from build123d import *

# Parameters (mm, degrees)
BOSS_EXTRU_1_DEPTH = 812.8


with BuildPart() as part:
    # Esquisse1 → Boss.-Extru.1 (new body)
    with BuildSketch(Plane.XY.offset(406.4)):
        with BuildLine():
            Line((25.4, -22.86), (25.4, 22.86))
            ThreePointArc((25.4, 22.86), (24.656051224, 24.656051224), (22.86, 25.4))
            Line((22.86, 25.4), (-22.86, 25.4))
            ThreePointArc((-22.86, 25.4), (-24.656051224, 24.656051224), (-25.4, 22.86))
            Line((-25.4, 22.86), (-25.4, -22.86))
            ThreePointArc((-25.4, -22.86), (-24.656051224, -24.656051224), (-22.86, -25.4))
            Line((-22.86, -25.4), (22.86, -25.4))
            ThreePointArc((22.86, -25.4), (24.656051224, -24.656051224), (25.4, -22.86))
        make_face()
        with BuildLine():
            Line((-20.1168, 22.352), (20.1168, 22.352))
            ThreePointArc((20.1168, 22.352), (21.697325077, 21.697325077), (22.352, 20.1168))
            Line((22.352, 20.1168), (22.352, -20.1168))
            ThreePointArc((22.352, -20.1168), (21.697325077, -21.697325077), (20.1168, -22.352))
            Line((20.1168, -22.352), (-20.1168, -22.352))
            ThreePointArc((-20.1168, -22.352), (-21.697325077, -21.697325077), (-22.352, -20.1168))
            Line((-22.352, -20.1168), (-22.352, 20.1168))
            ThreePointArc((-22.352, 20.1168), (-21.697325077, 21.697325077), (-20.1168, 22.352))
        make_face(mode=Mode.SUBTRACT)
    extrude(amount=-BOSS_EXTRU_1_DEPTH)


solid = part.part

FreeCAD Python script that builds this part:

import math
import FreeCAD as App
import Part
import Sketcher

V = App.Vector
Q = App.Units.Quantity

doc = App.newDocument("Part")
params = doc.addObject("Spreadsheet::Sheet", "Params")
for row, (alias, value) in enumerate([
    ("sketch1_radius", "0.1 in"),
    ("sketch1_width", "1.8 in"),
    ("sketch1_radius2", "0.088 in"),
    ("sketch1_width2", "1.584 in"),
    ("pad1_length", "32 in"),
], start=1):
    params.set(f"A{row}", alias)
    params.set(f"B{row}", "=" + value)
    params.setAlias(f"B{row}", alias)

body = doc.addObject("PartDesign::Body", "Body")

sketch1 = body.newObject("Sketcher::SketchObject", "Sketch")
sketch1.AttachmentSupport = (doc.getObject("XY_Plane"), [""])
sketch1.MapMode = "FlatFace"
sketch1.AttachmentOffset = App.Placement(V(0, 0, 16 * 25.4), App.Rotation())
sketch1.addGeometry([
    Part.LineSegment(V(25.4, -22.86, 0), V(25.4, 22.86, 0)),
    Part.ArcOfCircle(Part.Circle(V(22.86, 22.86, 0), V(0, 0, 1), 2.54), math.radians(0), math.radians(90)),
    Part.LineSegment(V(22.86, 25.4, 0), V(-22.86, 25.4, 0)),
    Part.ArcOfCircle(Part.Circle(V(-22.86, 22.86, 0), V(0, 0, 1), 2.54), math.radians(90), math.radians(180)),
    Part.LineSegment(V(-25.4, 22.86, 0), V(-25.4, -22.86, 0)),
    Part.ArcOfCircle(Part.Circle(V(-22.86, -22.86, 0), V(0, 0, 1), 2.54), math.radians(-180), math.radians(-90)),
    Part.LineSegment(V(-22.86, -25.4, 0), V(22.86, -25.4, 0)),
    Part.ArcOfCircle(Part.Circle(V(22.86, -22.86, 0), V(0, 0, 1), 2.54), math.radians(-90), math.radians(0)),
    Part.ArcOfCircle(Part.Circle(V(-20.1168, 20.1168, 0), V(0, 0, 1), 2.2352), math.radians(90), math.radians(180)),
    Part.LineSegment(V(-20.1168, 22.352, 0), V(20.1168, 22.352, 0)),
    Part.ArcOfCircle(Part.Circle(V(20.1168, 20.1168, 0), V(0, 0, 1), 2.2352), math.radians(0), math.radians(90)),
    Part.LineSegment(V(22.352, 20.1168, 0), V(22.352, -20.1168, 0)),
    Part.ArcOfCircle(Part.Circle(V(20.1168, -20.1168, 0), V(0, 0, 1), 2.2352), math.radians(-90), math.radians(0)),
    Part.LineSegment(V(20.1168, -22.352, 0), V(-20.1168, -22.352, 0)),
    Part.ArcOfCircle(Part.Circle(V(-20.1168, -20.1168, 0), V(0, 0, 1), 2.2352), math.radians(-180), math.radians(-90)),
    Part.LineSegment(V(-22.352, -20.1168, 0), V(-22.352, 20.1168, 0)),
], False)
sketch1.addConstraint([
    Sketcher.Constraint("Tangent", 0, 2, 1, 1),
    Sketcher.Constraint("Tangent", 1, 2, 2, 1),
    Sketcher.Constraint("Tangent", 2, 2, 3, 1),
    Sketcher.Constraint("Tangent", 3, 2, 4, 1),
    Sketcher.Constraint("Tangent", 4, 2, 5, 1),
    Sketcher.Constraint("Tangent", 5, 2, 6, 1),
    Sketcher.Constraint("Tangent", 6, 2, 7, 1),
    Sketcher.Constraint("Tangent", 7, 2, 0, 1),
    Sketcher.Constraint("Tangent", 8, 1, 9, 1),
    Sketcher.Constraint("Tangent", 9, 2, 10, 2),
    Sketcher.Constraint("Tangent", 10, 1, 11, 1),
    Sketcher.Constraint("Tangent", 11, 2, 12, 2),
    Sketcher.Constraint("Tangent", 12, 1, 13, 1),
    Sketcher.Constraint("Tangent", 13, 2, 14, 2),
    Sketcher.Constraint("Tangent", 14, 1, 15, 1),
    Sketcher.Constraint("Tangent", 15, 2, 8, 2),
    Sketcher.Constraint("Vertical", 0),
    Sketcher.Constraint("Horizontal", 2),
    Sketcher.Constraint("Vertical", 4),
    Sketcher.Constraint("Horizontal", 6),
    Sketcher.Constraint("Horizontal", 9),
    Sketcher.Constraint("Vertical", 11),
    Sketcher.Constraint("Horizontal", 13),
    Sketcher.Constraint("Vertical", 15),
    Sketcher.Constraint("Equal", 1, 3),
    Sketcher.Constraint("Equal", 3, 5),
    Sketcher.Constraint("Equal", 5, 7),
    Sketcher.Constraint("Equal", 8, 10),
    Sketcher.Constraint("Equal", 10, 12),
    Sketcher.Constraint("Equal", 12, 14),
    Sketcher.Constraint("Symmetric", 1, 3, 5, 3, -1, 1),
    Sketcher.Constraint("Symmetric", 8, 3, 12, 3, -1, 1),
    Sketcher.Constraint("Equal", 6, 0),
    Sketcher.Constraint("Equal", 13, 11),
    Sketcher.Constraint("Radius", 1, Q("0.1 in")),
    Sketcher.Constraint("DistanceX", 2, 2, 2, 1, Q("1.8 in")),
    Sketcher.Constraint("Radius", 8, Q("0.088 in")),
    Sketcher.Constraint("DistanceX", 9, 1, 9, 2, Q("1.584 in")),
])
sketch1.setExpression("Constraints[34]", "Params.sketch1_radius")
sketch1.setExpression("Constraints[35]", "Params.sketch1_width")
sketch1.setExpression("Constraints[36]", "Params.sketch1_radius2")
sketch1.setExpression("Constraints[37]", "Params.sketch1_width2")
pad1 = body.newObject("PartDesign::Pad", "Pad")
pad1.Profile = sketch1
pad1.setExpression("Length", "Params.pad1_length")
pad1.Reversed = True

doc.recompute()
